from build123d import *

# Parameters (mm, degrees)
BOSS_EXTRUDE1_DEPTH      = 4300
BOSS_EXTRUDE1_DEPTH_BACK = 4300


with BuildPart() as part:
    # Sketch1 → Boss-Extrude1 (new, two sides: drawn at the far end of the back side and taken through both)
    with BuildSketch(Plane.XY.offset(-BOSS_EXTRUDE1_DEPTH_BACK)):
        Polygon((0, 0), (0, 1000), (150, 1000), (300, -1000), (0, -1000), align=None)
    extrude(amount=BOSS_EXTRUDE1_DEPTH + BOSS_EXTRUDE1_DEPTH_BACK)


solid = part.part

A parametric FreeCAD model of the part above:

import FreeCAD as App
import Part
import Sketcher

doc = App.newDocument("Part")
body = doc.addObject("PartDesign::Body", "Body")

sketch1 = body.newObject("Sketcher::SketchObject", "Sketch")
sketch1.AttachmentSupport = (doc.getObject("XY_Plane"), [""])
sketch1.MapMode = "FlatFace"
sketch1.addGeometry([
    Part.LineSegment(App.Vector(0, 1000, 0), App.Vector(0, -1000, 0)),
    Part.LineSegment(App.Vector(0, -1000, 0), App.Vector(300, -1000, 0)),
    Part.LineSegment(App.Vector(300, -1000, 0), App.Vector(150, 1000, 0)),
    Part.LineSegment(App.Vector(150, 1000, 0), App.Vector(0, 1000, 0)),
], False)
sketch1.addConstraint([
    Sketcher.Constraint("Coincident", 0, 2, 1, 1),
    Sketcher.Constraint("Coincident", 1, 2, 2, 1),
    Sketcher.Constraint("Coincident", 2, 2, 3, 1),
    Sketcher.Constraint("Coincident", 3, 2, 0, 1),
    Sketcher.Constraint("Vertical", 0),
    Sketcher.Constraint("Horizontal", 1),
    Sketcher.Constraint("Horizontal", 3),
    Sketcher.Constraint("Symmetric", 0, 2, 3, 2, -1, 1),
    Sketcher.Constraint("DistanceX", 1, 1, 1, 2, 300.0),
    Sketcher.Constraint("DistanceX", 3, 2, 3, 1, 150.0),
    Sketcher.Constraint("DistanceY", 0, 2, 0, 1, 2000.0),
])
pad1 = body.newObject("PartDesign::Pad", "Pad")
pad1.Profile = sketch1
pad1.Type = "TwoLengths"
pad1.Length = 4300
pad1.Length2 = 4300

doc.recompute()
